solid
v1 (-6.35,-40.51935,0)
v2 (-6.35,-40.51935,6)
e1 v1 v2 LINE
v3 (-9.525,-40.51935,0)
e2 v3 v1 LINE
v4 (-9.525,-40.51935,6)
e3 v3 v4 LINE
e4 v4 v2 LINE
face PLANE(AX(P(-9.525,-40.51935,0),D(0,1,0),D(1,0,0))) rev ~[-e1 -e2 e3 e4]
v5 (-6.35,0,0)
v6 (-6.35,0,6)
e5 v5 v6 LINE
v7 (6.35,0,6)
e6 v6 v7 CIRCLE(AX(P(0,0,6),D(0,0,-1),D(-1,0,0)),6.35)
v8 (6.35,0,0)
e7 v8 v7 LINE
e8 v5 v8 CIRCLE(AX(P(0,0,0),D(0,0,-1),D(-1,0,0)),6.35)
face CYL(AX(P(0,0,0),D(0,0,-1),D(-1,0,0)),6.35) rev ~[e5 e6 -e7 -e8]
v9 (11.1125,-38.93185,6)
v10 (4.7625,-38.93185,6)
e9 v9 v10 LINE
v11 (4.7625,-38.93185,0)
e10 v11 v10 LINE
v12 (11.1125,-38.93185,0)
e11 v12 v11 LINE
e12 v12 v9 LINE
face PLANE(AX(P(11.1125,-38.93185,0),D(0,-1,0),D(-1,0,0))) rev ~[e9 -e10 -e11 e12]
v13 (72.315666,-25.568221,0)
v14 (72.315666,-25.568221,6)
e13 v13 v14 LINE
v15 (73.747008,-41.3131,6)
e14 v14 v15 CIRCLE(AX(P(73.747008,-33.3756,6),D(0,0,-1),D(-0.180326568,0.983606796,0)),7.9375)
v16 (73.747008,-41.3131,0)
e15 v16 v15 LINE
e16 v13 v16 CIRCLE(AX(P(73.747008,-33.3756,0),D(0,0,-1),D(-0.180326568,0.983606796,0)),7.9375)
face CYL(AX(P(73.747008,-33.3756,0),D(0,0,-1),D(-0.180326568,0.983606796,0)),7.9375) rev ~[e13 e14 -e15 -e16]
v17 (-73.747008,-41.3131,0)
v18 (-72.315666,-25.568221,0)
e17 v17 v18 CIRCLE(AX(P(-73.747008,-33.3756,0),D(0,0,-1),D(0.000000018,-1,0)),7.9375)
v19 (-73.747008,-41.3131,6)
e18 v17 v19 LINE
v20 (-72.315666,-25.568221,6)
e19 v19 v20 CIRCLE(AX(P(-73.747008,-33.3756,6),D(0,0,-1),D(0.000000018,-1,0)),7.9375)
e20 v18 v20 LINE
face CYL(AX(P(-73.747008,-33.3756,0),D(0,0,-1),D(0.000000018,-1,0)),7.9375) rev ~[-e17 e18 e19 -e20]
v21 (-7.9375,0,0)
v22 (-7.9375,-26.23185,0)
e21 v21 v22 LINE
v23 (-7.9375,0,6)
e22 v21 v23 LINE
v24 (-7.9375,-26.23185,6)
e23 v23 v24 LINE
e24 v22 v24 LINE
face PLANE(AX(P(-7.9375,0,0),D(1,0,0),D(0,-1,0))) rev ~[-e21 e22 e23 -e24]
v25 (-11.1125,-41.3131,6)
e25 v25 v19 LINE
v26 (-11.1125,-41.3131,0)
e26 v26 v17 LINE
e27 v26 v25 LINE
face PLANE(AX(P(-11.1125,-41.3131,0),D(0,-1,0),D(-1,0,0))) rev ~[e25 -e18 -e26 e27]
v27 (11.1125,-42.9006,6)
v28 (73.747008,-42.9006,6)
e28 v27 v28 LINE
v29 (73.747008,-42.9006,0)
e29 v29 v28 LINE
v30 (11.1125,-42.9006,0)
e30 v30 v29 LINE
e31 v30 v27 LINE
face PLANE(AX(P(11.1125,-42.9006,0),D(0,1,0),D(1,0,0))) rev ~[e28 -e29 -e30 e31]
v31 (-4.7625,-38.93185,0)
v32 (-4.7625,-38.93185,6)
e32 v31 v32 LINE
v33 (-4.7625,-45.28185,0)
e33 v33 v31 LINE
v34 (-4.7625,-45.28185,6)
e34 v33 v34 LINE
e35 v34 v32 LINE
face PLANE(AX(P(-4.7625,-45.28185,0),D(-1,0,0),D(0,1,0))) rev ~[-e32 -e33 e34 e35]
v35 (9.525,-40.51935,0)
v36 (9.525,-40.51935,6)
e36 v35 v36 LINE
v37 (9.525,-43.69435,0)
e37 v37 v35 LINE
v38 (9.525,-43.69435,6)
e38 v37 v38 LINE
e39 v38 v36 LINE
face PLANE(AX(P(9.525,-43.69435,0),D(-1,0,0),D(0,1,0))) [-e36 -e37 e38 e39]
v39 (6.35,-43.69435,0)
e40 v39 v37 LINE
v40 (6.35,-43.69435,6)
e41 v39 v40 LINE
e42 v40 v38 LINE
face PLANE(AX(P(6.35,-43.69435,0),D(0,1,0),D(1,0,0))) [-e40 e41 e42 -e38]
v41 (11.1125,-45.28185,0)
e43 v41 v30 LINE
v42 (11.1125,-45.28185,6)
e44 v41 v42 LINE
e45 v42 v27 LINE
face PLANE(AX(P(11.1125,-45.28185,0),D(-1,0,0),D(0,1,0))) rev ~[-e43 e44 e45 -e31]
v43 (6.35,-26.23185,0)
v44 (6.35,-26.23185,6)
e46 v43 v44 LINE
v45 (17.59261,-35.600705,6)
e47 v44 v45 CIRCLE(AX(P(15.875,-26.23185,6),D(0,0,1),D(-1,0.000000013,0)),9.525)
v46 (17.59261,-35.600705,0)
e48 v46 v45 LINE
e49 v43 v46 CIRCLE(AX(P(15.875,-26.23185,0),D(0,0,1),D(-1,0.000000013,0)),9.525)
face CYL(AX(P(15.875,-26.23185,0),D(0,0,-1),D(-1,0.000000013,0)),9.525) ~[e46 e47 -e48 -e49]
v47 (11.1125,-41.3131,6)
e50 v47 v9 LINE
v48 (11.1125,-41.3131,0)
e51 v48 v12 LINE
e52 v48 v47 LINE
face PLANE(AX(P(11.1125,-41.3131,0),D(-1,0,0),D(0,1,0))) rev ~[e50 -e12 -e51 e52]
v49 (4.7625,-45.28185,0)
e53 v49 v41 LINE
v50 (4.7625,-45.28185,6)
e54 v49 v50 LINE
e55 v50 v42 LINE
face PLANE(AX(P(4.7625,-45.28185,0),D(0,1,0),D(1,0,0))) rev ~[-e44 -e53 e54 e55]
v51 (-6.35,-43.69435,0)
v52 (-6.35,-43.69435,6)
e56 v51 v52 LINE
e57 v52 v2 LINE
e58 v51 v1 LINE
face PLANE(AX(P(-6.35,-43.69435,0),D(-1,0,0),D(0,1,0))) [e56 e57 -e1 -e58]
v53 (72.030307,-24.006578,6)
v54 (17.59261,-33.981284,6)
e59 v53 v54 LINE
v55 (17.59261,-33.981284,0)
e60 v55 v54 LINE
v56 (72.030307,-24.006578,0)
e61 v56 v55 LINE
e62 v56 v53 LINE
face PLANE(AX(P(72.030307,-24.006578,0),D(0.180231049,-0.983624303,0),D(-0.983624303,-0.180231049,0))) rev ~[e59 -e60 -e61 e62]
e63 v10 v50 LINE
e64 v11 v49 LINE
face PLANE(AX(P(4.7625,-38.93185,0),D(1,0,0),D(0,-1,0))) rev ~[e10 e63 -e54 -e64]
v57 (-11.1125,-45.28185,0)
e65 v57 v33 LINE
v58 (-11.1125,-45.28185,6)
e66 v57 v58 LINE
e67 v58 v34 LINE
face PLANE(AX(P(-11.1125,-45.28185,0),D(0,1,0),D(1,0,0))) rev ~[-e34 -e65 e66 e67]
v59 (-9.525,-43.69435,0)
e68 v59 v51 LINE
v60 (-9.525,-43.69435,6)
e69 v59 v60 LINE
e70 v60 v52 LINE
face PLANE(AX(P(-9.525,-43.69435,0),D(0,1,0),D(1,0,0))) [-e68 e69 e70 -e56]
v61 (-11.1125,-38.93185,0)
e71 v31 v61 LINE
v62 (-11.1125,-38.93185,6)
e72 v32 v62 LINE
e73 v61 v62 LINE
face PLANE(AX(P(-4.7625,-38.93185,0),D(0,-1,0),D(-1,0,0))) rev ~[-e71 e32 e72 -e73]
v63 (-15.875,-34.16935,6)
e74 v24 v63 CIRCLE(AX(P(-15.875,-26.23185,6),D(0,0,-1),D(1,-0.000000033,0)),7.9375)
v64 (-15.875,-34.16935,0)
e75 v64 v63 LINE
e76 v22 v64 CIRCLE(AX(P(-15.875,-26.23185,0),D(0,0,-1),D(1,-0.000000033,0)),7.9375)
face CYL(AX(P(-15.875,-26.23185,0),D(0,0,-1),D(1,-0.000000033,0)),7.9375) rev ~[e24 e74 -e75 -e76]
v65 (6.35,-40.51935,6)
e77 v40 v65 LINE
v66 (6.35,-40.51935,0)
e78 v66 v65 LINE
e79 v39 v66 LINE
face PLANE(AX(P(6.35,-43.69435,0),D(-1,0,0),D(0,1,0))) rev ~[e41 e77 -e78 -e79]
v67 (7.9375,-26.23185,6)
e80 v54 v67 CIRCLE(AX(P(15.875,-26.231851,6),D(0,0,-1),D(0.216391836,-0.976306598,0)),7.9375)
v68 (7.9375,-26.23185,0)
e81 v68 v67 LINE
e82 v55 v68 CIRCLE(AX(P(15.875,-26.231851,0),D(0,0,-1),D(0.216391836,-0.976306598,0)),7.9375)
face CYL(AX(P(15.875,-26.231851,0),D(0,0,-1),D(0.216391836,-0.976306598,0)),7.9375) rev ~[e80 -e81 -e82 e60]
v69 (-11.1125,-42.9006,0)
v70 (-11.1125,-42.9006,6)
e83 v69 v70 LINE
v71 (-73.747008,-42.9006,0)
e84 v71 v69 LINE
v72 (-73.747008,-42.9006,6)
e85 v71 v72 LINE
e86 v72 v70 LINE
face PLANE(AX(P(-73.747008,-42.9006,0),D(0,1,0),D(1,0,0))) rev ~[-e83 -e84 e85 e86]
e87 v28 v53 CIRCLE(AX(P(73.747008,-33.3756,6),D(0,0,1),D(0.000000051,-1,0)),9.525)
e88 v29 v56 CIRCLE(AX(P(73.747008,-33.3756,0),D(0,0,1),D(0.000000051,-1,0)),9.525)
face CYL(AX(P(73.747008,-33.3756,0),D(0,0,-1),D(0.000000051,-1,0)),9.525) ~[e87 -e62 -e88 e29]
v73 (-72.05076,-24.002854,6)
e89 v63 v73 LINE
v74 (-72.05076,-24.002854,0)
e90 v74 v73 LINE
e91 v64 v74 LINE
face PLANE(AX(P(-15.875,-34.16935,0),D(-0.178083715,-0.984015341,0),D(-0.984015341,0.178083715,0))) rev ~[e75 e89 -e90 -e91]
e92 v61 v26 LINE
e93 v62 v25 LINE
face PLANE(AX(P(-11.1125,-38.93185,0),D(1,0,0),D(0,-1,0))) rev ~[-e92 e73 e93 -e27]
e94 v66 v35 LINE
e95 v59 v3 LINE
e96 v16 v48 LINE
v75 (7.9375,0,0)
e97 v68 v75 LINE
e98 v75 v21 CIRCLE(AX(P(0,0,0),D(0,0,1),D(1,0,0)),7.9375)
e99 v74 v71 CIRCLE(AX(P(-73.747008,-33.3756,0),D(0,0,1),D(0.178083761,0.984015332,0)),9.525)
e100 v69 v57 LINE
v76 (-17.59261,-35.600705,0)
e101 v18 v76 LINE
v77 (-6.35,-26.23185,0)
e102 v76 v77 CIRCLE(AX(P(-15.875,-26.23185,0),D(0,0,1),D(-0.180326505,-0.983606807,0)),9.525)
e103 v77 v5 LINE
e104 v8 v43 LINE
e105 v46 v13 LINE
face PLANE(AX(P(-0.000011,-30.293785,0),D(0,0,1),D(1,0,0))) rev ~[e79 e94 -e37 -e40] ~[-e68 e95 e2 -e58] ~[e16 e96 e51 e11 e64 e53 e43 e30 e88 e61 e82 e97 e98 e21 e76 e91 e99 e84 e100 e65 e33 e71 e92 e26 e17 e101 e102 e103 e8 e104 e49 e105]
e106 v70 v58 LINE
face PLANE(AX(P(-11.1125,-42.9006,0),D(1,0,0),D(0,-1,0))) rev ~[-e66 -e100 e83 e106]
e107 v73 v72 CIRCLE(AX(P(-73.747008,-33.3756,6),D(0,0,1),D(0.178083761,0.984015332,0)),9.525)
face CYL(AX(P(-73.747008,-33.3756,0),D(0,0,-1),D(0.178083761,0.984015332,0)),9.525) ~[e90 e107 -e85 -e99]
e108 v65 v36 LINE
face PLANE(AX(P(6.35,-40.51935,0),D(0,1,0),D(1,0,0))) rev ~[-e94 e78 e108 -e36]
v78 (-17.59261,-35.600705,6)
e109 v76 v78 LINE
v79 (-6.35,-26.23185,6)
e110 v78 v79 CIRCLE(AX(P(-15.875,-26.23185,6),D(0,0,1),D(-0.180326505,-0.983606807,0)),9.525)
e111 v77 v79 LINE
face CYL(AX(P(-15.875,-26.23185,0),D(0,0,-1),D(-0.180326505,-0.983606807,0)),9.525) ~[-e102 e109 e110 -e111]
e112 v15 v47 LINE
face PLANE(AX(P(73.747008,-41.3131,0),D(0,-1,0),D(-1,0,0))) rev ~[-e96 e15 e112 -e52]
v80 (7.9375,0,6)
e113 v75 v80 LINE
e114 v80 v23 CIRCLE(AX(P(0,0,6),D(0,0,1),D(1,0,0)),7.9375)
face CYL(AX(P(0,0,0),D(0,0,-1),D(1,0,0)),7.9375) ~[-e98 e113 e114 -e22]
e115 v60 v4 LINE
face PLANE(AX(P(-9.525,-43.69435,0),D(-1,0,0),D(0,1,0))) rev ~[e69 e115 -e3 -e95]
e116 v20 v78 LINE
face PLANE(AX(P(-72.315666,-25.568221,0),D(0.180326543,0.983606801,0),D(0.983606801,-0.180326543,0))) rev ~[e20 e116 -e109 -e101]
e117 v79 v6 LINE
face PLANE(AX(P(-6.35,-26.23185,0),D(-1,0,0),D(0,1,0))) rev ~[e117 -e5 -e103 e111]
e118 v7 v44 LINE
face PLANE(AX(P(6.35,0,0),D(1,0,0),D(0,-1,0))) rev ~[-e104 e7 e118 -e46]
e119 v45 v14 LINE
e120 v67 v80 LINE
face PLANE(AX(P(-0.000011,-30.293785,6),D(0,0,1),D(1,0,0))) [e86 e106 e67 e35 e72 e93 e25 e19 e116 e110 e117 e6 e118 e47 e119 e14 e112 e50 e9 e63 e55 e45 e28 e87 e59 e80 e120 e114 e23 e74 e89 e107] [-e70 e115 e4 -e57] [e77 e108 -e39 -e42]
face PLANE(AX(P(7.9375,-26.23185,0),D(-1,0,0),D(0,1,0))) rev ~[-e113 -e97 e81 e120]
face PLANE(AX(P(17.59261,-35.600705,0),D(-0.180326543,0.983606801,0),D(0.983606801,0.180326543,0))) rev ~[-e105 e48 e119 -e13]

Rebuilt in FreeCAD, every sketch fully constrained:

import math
import FreeCAD as App
import Part
import Sketcher
Q = App.Units.Quantity


def add_polygon(sketch, points):
    """Adds a closed chain of lines whose ends are joined by coincident constraints."""
    first, n = sketch.GeometryCount, len(points)
    for a, b in zip(points, points[1:] + points[:1]):
        sketch.addGeometry(Part.LineSegment(App.Vector(*a, 0), App.Vector(*b, 0)), False)
    for i in range(n):
        sketch.addConstraint(Sketcher.Constraint("Coincident", first + i, 2, first + (i + 1) % n, 1))

doc = App.newDocument("Part")
body = doc.addObject("PartDesign::Body", "Body")

# Sketch on XY plane
sketch1 = body.newObject("Sketcher::SketchObject", "Sketch")
sketch1.AttachmentSupport = (doc.getObject("XY_Plane"), [""])
sketch1.MapMode = "FlatFace"
sketch1.addGeometry(Part.LineSegment(App.Vector(-6.35, -26.23185, 0), App.Vector(-6.35, 0, 0)), False)  # 0
sketch1.addGeometry(Part.ArcOfCircle(Part.Circle(App.Vector(0, 0, 0), App.Vector(0, 0, 1), 6.35), math.radians(0), math.radians(180)), False)  # 1
sketch1.addGeometry(Part.LineSegment(App.Vector(6.35, 0, 0), App.Vector(6.35, -26.23185, 0)), False)  # 2
sketch1.addGeometry(Part.ArcOfCircle(Part.Circle(App.Vector(15.875, -26.23185, 0), App.Vector(0, 0, 1), 9.525), math.radians(179.999999), math.radians(280.388778)), False)  # 3
sketch1.addGeometry(Part.LineSegment(App.Vector(17.59261, -35.600705, 0), App.Vector(72.315666, -25.568221, 0)), False)  # 4
sketch1.addGeometry(Part.ArcOfCircle(Part.Circle(App.Vector(73.747008, -33.3756, 0), App.Vector(0, 0, 1), 7.9375), math.radians(-90.000001), math.radians(100.388782)), False)  # 5
sketch1.addGeometry(Part.LineSegment(App.Vector(73.747008, -41.3131, 0), App.Vector(11.1125, -41.3131, 0)), False)  # 6
sketch1.addGeometry(Part.LineSegment(App.Vector(11.1125, -41.3131, 0), App.Vector(11.1125, -38.93185, 0)), False)  # 7
sketch1.addGeometry(Part.LineSegment(App.Vector(11.1125, -38.93185, 0), App.Vector(4.7625, -38.93185, 0)), False)  # 8
sketch1.addGeometry(Part.LineSegment(App.Vector(4.7625, -38.93185, 0), App.Vector(4.7625, -45.28185, 0)), False)  # 9
sketch1.addGeometry(Part.LineSegment(App.Vector(4.7625, -45.28185, 0), App.Vector(11.1125, -45.28185, 0)), False)  # 10
sketch1.addGeometry(Part.LineSegment(App.Vector(11.1125, -45.28185, 0), App.Vector(11.1125, -42.9006, 0)), False)  # 11
sketch1.addGeometry(Part.LineSegment(App.Vector(11.1125, -42.9006, 0), App.Vector(73.747008, -42.9006, 0)), False)  # 12
sketch1.addGeometry(Part.ArcOfCircle(Part.Circle(App.Vector(73.747008, -33.3756, 0), App.Vector(0, 0, 1), 9.525), math.radians(-89.999997), math.radians(100.383216)), False)  # 13
sketch1.addGeometry(Part.LineSegment(App.Vector(72.030307, -24.006578, 0), App.Vector(17.59261, -33.981284, 0)), False)  # 14
sketch1.addGeometry(Part.ArcOfCircle(Part.Circle(App.Vector(15.875, -26.231851, 0), App.Vector(0, 0, 1), 7.9375), math.radians(179.999996), math.radians(282.497196)), False)  # 15
sketch1.addGeometry(Part.LineSegment(App.Vector(7.9375, -26.23185, 0), App.Vector(7.9375, 0, 0)), False)  # 16
sketch1.addGeometry(Part.ArcOfCircle(Part.Circle(App.Vector(0, 0, 0), App.Vector(0, 0, 1), 7.9375), math.radians(0), math.radians(180)), False)  # 17
sketch1.addGeometry(Part.LineSegment(App.Vector(-7.9375, 0, 0), App.Vector(-7.9375, -26.23185, 0)), False)  # 18
sketch1.addGeometry(Part.ArcOfCircle(Part.Circle(App.Vector(-15.875, -26.23185, 0), App.Vector(0, 0, 1), 7.9375), math.radians(-89.999998), math.radians(-0.000002)), False)  # 19
sketch1.addGeometry(Part.LineSegment(App.Vector(-15.875, -34.16935, 0), App.Vector(-72.05076, -24.002854, 0)), False)  # 20
sketch1.addGeometry(Part.ArcOfCircle(Part.Circle(App.Vector(-73.747008, -33.3756, 0), App.Vector(0, 0, 1), 9.525), math.radians(79.741836), math.radians(269.999999)), False)  # 21
sketch1.addGeometry(Part.LineSegment(App.Vector(-73.747008, -42.9006, 0), App.Vector(-11.1125, -42.9006, 0)), False)  # 22
sketch1.addGeometry(Part.LineSegment(App.Vector(-11.1125, -42.9006, 0), App.Vector(-11.1125, -45.28185, 0)), False)  # 23
sketch1.addGeometry(Part.LineSegment(App.Vector(-11.1125, -45.28185, 0), App.Vector(-4.7625, -45.28185, 0)), False)  # 24
sketch1.addGeometry(Part.LineSegment(App.Vector(-4.7625, -45.28185, 0), App.Vector(-4.7625, -38.93185, 0)), False)  # 25
sketch1.addGeometry(Part.LineSegment(App.Vector(-4.7625, -38.93185, 0), App.Vector(-11.1125, -38.93185, 0)), False)  # 26
sketch1.addGeometry(Part.LineSegment(App.Vector(-11.1125, -38.93185, 0), App.Vector(-11.1125, -41.3131, 0)), False)  # 27
sketch1.addGeometry(Part.LineSegment(App.Vector(-11.1125, -41.3131, 0), App.Vector(-73.747008, -41.3131, 0)), False)  # 28
sketch1.addGeometry(Part.ArcOfCircle(Part.Circle(App.Vector(-73.747008, -33.3756, 0), App.Vector(0, 0, 1), 7.9375), math.radians(79.611218), math.radians(270.000001)), False)  # 29
sketch1.addGeometry(Part.LineSegment(App.Vector(-72.315666, -25.568221, 0), App.Vector(-17.59261, -35.600705, 0)), False)  # 30
sketch1.addGeometry(Part.ArcOfCircle(Part.Circle(App.Vector(-15.875, -26.23185, 0), App.Vector(0, 0, 1), 9.525), math.radians(-100.388778), math.radians(0.000001)), False)  # 31
add_polygon(sketch1, [(-6.35, -43.69435), (-9.525, -43.69435), (-9.525, -40.51935), (-6.35, -40.51935)])  # lines 32-35
add_polygon(sketch1, [(9.525, -43.69435), (6.35, -43.69435), (6.35, -40.51935), (9.525, -40.51935)])  # lines 36-39
sketch1.addConstraint(Sketcher.Constraint("Tangent", 0, 2, 1, 2))
sketch1.addConstraint(Sketcher.Constraint("Tangent", 1, 1, 2, 1))
sketch1.addConstraint(Sketcher.Constraint("Tangent", 2, 2, 3, 1))
sketch1.addConstraint(Sketcher.Constraint("Tangent", 3, 2, 4, 1))
sketch1.addConstraint(Sketcher.Constraint("Tangent", 4, 2, 5, 2))
sketch1.addConstraint(Sketcher.Constraint("Tangent", 5, 1, 6, 1))
sketch1.addConstraint(Sketcher.Constraint("Coincident", 6, 2, 7, 1))
sketch1.addConstraint(Sketcher.Constraint("Coincident", 7, 2, 8, 1))
sketch1.addConstraint(Sketcher.Constraint("Coincident", 8, 2, 9, 1))
sketch1.addConstraint(Sketcher.Constraint("Coincident", 9, 2, 10, 1))
sketch1.addConstraint(Sketcher.Constraint("Coincident", 10, 2, 11, 1))
sketch1.addConstraint(Sketcher.Constraint("Coincident", 11, 2, 12, 1))
sketch1.addConstraint(Sketcher.Constraint("Tangent", 12, 2, 13, 1))
sketch1.addConstraint(Sketcher.Constraint("Tangent", 13, 2, 14, 1))
sketch1.addConstraint(Sketcher.Constraint("Coincident", 14, 2, 15, 2))
sketch1.addConstraint(Sketcher.Constraint("Tangent", 15, 1, 16, 1))
sketch1.addConstraint(Sketcher.Constraint("Tangent", 16, 2, 17, 1))
sketch1.addConstraint(Sketcher.Constraint("Tangent", 17, 2, 18, 1))
sketch1.addConstraint(Sketcher.Constraint("Tangent", 18, 2, 19, 2))
sketch1.addConstraint(Sketcher.Constraint("Coincident", 19, 1, 20, 1))
sketch1.addConstraint(Sketcher.Constraint("Tangent", 20, 2, 21, 1))
sketch1.addConstraint(Sketcher.Constraint("Tangent", 21, 2, 22, 1))
sketch1.addConstraint(Sketcher.Constraint("Coincident", 22, 2, 23, 1))
sketch1.addConstraint(Sketcher.Constraint("Coincident", 23, 2, 24, 1))
sketch1.addConstraint(Sketcher.Constraint("Coincident", 24, 2, 25, 1))
sketch1.addConstraint(Sketcher.Constraint("Coincident", 25, 2, 26, 1))
sketch1.addConstraint(Sketcher.Constraint("Coincident", 26, 2, 27, 1))
sketch1.addConstraint(Sketcher.Constraint("Coincident", 27, 2, 28, 1))
sketch1.addConstraint(Sketcher.Constraint("Tangent", 28, 2, 29, 2))
sketch1.addConstraint(Sketcher.Constraint("Tangent", 29, 1, 30, 1))
sketch1.addConstraint(Sketcher.Constraint("Tangent", 30, 2, 31, 1))
sketch1.addConstraint(Sketcher.Constraint("Tangent", 31, 2, 0, 1))
sketch1.addConstraint(Sketcher.Constraint("Vertical", 0))
sketch1.addConstraint(Sketcher.Constraint("Vertical", 2))
sketch1.addConstraint(Sketcher.Constraint("Horizontal", 6))
sketch1.addConstraint(Sketcher.Constraint("Vertical", 7))
sketch1.addConstraint(Sketcher.Constraint("Horizontal", 8))
sketch1.addConstraint(Sketcher.Constraint("Vertical", 9))
sketch1.addConstraint(Sketcher.Constraint("Horizontal", 10))
sketch1.addConstraint(Sketcher.Constraint("Vertical", 11))
sketch1.addConstraint(Sketcher.Constraint("Horizontal", 12))
sketch1.addConstraint(Sketcher.Constraint("Vertical", 16))
sketch1.addConstraint(Sketcher.Constraint("Vertical", 18))
sketch1.addConstraint(Sketcher.Constraint("Horizontal", 22))
sketch1.addConstraint(Sketcher.Constraint("Vertical", 23))
sketch1.addConstraint(Sketcher.Constraint("Horizontal", 24))
sketch1.addConstraint(Sketcher.Constraint("Vertical", 25))
sketch1.addConstraint(Sketcher.Constraint("Horizontal", 26))
sketch1.addConstraint(Sketcher.Constraint("Vertical", 27))
sketch1.addConstraint(Sketcher.Constraint("Horizontal", 28))
sketch1.addConstraint(Sketcher.Constraint("Horizontal", 32))
sketch1.addConstraint(Sketcher.Constraint("Vertical", 33))
sketch1.addConstraint(Sketcher.Constraint("Horizontal", 34))
sketch1.addConstraint(Sketcher.Constraint("Vertical", 35))
sketch1.addConstraint(Sketcher.Constraint("Horizontal", 36))
sketch1.addConstraint(Sketcher.Constraint("Vertical", 37))
sketch1.addConstraint(Sketcher.Constraint("Horizontal", 38))
sketch1.addConstraint(Sketcher.Constraint("Vertical", 39))
sketch1.addConstraint(Sketcher.Constraint("Coincident", 1, 3, -1, 1))
sketch1.addConstraint(Sketcher.Constraint("Coincident", 17, 3, -1, 1))
sketch1.addConstraint(Sketcher.Constraint("Coincident", 13, 3, 5, 3))
sketch1.addConstraint(Sketcher.Constraint("Coincident", 15, 3, 3, 3))
sketch1.addConstraint(Sketcher.Constraint("Coincident", 29, 3, 21, 3))
sketch1.addConstraint(Sketcher.Constraint("Coincident", 31, 3, 19, 3))
sketch1.addConstraint(Sketcher.Constraint("Equal", 3, 13))
sketch1.addConstraint(Sketcher.Constraint("Equal", 5, 15))
sketch1.addConstraint(Sketcher.Constraint("Equal", 15, 17))
sketch1.addConstraint(Sketcher.Constraint("Equal", 17, 19))
sketch1.addConstraint(Sketcher.Constraint("Equal", 13, 21))
sketch1.addConstraint(Sketcher.Constraint("Equal", 19, 29))
sketch1.addConstraint(Sketcher.Constraint("Symmetric", 5, 3, 21, 3, -2))
sketch1.addConstraint(Sketcher.Constraint("Symmetric", 10, 2, 23, 2, -2))
sketch1.addConstraint(Sketcher.Constraint("Symmetric", 8, 2, 25, 2, -2))
sketch1.addConstraint(Sketcher.Constraint("Symmetric", 35, 2, 36, 2, -2))
sketch1.addConstraint(Sketcher.Constraint("Symmetric", 33, 2, 38, 2, -2))
sketch1.addConstraint(Sketcher.Constraint("Horizontal", 15, 3, 19, 3))
sketch1.addConstraint(Sketcher.Constraint("Vertical", 7, 2, 10, 2))
sketch1.addConstraint(Sketcher.Constraint("Vertical", 3, 2, 14, 2))
sketch1.addConstraint(Sketcher.Constraint("Vertical", 31, 3, 19, 1))
sketch1.addConstraint(Sketcher.Constraint("Vertical", 23, 2, 26, 2))
sketch1.addConstraint(Sketcher.Constraint("Vertical", 31, 2, 34, 2))
sketch1.addConstraint(Sketcher.Constraint("Equal", 26, 9))
sketch1.addConstraint(Sketcher.Constraint("Equal", 7, 11))
sketch1.addConstraint(Sketcher.Constraint("Equal", 38, 33))
sketch1.addConstraint(Sketcher.Constraint("Radius", 1, Q("0.25 in")))
sketch1.addConstraint(Sketcher.Constraint("Radius", 3, Q("0.375 in")))
sketch1.addConstraint(Sketcher.Constraint("DistanceX", 8, 2, 8, 1, Q("0.25 in")))
sketch1.addConstraint(Sketcher.Constraint("DistanceY", 7, 2, 15, 3, Q("0.5 in")))
sketch1.addConstraint(Sketcher.Constraint("DistanceX", 18, 2, 8, 2, Q("0.5 in")))
sketch1.addConstraint(Sketcher.Constraint("DistanceX", 32, 2, 32, 1, Q("0.125 in")))
sketch1.addConstraint(Sketcher.Constraint("DistanceY", 5, 3, -1, 1, Q("1.314 in")))
sketch1.addConstraint(Sketcher.Constraint("DistanceY", 32, 2, 22, 2, Q("0.03125 in")))
sketch1.addConstraint(Sketcher.Constraint("DistanceX", 3, 2, 5, 1, 56.154398))
pad1 = body.newObject("PartDesign::Pad", "Pad")
pad1.Profile = sketch1
pad1.Length = 6

doc.recompute()
